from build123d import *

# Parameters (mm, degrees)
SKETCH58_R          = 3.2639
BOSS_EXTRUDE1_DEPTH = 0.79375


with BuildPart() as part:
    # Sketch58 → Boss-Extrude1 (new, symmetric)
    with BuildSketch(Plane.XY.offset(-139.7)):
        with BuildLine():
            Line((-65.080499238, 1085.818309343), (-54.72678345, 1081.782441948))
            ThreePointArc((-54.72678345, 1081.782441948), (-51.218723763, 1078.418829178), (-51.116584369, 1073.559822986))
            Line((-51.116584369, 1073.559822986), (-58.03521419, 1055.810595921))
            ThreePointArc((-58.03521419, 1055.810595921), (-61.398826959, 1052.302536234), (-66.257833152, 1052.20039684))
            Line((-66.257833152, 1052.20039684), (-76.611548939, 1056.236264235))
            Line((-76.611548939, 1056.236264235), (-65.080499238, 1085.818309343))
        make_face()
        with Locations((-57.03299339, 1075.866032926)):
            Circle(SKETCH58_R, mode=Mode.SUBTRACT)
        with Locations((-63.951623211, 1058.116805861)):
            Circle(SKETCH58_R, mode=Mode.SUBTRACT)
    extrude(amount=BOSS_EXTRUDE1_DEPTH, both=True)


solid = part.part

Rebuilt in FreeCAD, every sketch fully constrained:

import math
import FreeCAD as App
import Part
import Sketcher

V = App.Vector
Q = App.Units.Quantity

doc = App.newDocument("Part")
body = doc.addObject("PartDesign::Body", "Body")

# Sketch on XY plane
sketch1 = body.newObject("Sketcher::SketchObject", "Sketch")
sketch1.AttachmentSupport = (doc.getObject("XY_Plane"), [""])
sketch1.MapMode = "FlatFace"
sketch1.AttachmentOffset = App.Placement(V(0, 0, -5.5 * 25.4), App.Rotation())
sketch1.addGeometry(Part.LineSegment(V(-54.726783, 1081.782442, 0), V(-65.080499, 1085.818309, 0)), False)
sketch1.addGeometry(Part.LineSegment(V(-65.080499, 1085.818309, 0), V(-76.611549, 1056.236264, 0)), False)
sketch1.addGeometry(Part.LineSegment(V(-76.611549, 1056.236264, 0), V(-66.257833, 1052.200397, 0)), False)
sketch1.addGeometry(Part.ArcOfCircle(Part.Circle(V(-63.951623, 1058.116806, 0), V(0, 0, 1), 6.35), math.radians(-111.295784), math.radians(-21.295784)), False)
sketch1.addGeometry(Part.LineSegment(V(-58.035214, 1055.810596, 0), V(-51.116584, 1073.559823, 0)), False)
sketch1.addGeometry(Part.ArcOfCircle(Part.Circle(V(-57.032993, 1075.866033, 0), V(0, 0, 1), 6.35), math.radians(-21.295784), math.radians(68.704216)), False)
sketch1.addGeometry(Part.Circle(V(-63.951623, 1058.116806, 0), V(0, 0, 1), 3.2639), False)
sketch1.addGeometry(Part.Circle(V(-57.032993, 1075.866033, 0), V(0, 0, 1), 3.2639), False)
sketch1.addConstraint(Sketcher.Constraint("Coincident", 0, 2, 1, 1))
sketch1.addConstraint(Sketcher.Constraint("Coincident", 1, 2, 2, 1))
sketch1.addConstraint(Sketcher.Constraint("Tangent", 2, 2, 3, 1))
sketch1.addConstraint(Sketcher.Constraint("Tangent", 3, 2, 4, 1))
sketch1.addConstraint(Sketcher.Constraint("Tangent", 4, 2, 5, 1))
sketch1.addConstraint(Sketcher.Constraint("Tangent", 5, 2, 0, 1))
sketch1.addConstraint(Sketcher.Constraint("Coincident", 6, 3, 3, 3))
sketch1.addConstraint(Sketcher.Constraint("Coincident", 7, 3, 5, 3))
sketch1.addConstraint(Sketcher.Constraint("Equal", 3, 5))
sketch1.addConstraint(Sketcher.Constraint("Equal", 6, 7))
sketch1.addConstraint(Sketcher.Constraint("Perpendicular", 0, 1))
sketch1.addConstraint(Sketcher.Constraint("Perpendicular", 1, 2))
sketch1.addConstraint(Sketcher.Constraint("Perpendicular", 2, 4))
sketch1.addConstraint(Sketcher.Constraint("Radius", 3, Q("0.25 in")))
sketch1.addConstraint(Sketcher.Constraint("Diameter", 6, Q("0.257 in")))
sketch1.addConstraint(Sketcher.Constraint("Distance", 1, Q("1.25 in")))
sketch1.addConstraint(Sketcher.Constraint("Distance", 0, Q("0.4375 in")))
sketch1.addConstraint(Sketcher.Constraint("DistanceX", 0, 2, -1, 1, Q("65.080499 mm")))
sketch1.addConstraint(Sketcher.Constraint("DistanceY", 2, 2, 3, 2, Q("3.610199 mm")))
sketch1.addConstraint(Sketcher.Constraint("DistanceY", -1, 1, 0, 2, Q("1085.818309 mm")))
pad1 = body.newObject("PartDesign::Pad", "Pad")
pad1.Profile = sketch1
pad1.Length = Q("0.0625 in")
pad1.Midplane = True

doc.recompute()
